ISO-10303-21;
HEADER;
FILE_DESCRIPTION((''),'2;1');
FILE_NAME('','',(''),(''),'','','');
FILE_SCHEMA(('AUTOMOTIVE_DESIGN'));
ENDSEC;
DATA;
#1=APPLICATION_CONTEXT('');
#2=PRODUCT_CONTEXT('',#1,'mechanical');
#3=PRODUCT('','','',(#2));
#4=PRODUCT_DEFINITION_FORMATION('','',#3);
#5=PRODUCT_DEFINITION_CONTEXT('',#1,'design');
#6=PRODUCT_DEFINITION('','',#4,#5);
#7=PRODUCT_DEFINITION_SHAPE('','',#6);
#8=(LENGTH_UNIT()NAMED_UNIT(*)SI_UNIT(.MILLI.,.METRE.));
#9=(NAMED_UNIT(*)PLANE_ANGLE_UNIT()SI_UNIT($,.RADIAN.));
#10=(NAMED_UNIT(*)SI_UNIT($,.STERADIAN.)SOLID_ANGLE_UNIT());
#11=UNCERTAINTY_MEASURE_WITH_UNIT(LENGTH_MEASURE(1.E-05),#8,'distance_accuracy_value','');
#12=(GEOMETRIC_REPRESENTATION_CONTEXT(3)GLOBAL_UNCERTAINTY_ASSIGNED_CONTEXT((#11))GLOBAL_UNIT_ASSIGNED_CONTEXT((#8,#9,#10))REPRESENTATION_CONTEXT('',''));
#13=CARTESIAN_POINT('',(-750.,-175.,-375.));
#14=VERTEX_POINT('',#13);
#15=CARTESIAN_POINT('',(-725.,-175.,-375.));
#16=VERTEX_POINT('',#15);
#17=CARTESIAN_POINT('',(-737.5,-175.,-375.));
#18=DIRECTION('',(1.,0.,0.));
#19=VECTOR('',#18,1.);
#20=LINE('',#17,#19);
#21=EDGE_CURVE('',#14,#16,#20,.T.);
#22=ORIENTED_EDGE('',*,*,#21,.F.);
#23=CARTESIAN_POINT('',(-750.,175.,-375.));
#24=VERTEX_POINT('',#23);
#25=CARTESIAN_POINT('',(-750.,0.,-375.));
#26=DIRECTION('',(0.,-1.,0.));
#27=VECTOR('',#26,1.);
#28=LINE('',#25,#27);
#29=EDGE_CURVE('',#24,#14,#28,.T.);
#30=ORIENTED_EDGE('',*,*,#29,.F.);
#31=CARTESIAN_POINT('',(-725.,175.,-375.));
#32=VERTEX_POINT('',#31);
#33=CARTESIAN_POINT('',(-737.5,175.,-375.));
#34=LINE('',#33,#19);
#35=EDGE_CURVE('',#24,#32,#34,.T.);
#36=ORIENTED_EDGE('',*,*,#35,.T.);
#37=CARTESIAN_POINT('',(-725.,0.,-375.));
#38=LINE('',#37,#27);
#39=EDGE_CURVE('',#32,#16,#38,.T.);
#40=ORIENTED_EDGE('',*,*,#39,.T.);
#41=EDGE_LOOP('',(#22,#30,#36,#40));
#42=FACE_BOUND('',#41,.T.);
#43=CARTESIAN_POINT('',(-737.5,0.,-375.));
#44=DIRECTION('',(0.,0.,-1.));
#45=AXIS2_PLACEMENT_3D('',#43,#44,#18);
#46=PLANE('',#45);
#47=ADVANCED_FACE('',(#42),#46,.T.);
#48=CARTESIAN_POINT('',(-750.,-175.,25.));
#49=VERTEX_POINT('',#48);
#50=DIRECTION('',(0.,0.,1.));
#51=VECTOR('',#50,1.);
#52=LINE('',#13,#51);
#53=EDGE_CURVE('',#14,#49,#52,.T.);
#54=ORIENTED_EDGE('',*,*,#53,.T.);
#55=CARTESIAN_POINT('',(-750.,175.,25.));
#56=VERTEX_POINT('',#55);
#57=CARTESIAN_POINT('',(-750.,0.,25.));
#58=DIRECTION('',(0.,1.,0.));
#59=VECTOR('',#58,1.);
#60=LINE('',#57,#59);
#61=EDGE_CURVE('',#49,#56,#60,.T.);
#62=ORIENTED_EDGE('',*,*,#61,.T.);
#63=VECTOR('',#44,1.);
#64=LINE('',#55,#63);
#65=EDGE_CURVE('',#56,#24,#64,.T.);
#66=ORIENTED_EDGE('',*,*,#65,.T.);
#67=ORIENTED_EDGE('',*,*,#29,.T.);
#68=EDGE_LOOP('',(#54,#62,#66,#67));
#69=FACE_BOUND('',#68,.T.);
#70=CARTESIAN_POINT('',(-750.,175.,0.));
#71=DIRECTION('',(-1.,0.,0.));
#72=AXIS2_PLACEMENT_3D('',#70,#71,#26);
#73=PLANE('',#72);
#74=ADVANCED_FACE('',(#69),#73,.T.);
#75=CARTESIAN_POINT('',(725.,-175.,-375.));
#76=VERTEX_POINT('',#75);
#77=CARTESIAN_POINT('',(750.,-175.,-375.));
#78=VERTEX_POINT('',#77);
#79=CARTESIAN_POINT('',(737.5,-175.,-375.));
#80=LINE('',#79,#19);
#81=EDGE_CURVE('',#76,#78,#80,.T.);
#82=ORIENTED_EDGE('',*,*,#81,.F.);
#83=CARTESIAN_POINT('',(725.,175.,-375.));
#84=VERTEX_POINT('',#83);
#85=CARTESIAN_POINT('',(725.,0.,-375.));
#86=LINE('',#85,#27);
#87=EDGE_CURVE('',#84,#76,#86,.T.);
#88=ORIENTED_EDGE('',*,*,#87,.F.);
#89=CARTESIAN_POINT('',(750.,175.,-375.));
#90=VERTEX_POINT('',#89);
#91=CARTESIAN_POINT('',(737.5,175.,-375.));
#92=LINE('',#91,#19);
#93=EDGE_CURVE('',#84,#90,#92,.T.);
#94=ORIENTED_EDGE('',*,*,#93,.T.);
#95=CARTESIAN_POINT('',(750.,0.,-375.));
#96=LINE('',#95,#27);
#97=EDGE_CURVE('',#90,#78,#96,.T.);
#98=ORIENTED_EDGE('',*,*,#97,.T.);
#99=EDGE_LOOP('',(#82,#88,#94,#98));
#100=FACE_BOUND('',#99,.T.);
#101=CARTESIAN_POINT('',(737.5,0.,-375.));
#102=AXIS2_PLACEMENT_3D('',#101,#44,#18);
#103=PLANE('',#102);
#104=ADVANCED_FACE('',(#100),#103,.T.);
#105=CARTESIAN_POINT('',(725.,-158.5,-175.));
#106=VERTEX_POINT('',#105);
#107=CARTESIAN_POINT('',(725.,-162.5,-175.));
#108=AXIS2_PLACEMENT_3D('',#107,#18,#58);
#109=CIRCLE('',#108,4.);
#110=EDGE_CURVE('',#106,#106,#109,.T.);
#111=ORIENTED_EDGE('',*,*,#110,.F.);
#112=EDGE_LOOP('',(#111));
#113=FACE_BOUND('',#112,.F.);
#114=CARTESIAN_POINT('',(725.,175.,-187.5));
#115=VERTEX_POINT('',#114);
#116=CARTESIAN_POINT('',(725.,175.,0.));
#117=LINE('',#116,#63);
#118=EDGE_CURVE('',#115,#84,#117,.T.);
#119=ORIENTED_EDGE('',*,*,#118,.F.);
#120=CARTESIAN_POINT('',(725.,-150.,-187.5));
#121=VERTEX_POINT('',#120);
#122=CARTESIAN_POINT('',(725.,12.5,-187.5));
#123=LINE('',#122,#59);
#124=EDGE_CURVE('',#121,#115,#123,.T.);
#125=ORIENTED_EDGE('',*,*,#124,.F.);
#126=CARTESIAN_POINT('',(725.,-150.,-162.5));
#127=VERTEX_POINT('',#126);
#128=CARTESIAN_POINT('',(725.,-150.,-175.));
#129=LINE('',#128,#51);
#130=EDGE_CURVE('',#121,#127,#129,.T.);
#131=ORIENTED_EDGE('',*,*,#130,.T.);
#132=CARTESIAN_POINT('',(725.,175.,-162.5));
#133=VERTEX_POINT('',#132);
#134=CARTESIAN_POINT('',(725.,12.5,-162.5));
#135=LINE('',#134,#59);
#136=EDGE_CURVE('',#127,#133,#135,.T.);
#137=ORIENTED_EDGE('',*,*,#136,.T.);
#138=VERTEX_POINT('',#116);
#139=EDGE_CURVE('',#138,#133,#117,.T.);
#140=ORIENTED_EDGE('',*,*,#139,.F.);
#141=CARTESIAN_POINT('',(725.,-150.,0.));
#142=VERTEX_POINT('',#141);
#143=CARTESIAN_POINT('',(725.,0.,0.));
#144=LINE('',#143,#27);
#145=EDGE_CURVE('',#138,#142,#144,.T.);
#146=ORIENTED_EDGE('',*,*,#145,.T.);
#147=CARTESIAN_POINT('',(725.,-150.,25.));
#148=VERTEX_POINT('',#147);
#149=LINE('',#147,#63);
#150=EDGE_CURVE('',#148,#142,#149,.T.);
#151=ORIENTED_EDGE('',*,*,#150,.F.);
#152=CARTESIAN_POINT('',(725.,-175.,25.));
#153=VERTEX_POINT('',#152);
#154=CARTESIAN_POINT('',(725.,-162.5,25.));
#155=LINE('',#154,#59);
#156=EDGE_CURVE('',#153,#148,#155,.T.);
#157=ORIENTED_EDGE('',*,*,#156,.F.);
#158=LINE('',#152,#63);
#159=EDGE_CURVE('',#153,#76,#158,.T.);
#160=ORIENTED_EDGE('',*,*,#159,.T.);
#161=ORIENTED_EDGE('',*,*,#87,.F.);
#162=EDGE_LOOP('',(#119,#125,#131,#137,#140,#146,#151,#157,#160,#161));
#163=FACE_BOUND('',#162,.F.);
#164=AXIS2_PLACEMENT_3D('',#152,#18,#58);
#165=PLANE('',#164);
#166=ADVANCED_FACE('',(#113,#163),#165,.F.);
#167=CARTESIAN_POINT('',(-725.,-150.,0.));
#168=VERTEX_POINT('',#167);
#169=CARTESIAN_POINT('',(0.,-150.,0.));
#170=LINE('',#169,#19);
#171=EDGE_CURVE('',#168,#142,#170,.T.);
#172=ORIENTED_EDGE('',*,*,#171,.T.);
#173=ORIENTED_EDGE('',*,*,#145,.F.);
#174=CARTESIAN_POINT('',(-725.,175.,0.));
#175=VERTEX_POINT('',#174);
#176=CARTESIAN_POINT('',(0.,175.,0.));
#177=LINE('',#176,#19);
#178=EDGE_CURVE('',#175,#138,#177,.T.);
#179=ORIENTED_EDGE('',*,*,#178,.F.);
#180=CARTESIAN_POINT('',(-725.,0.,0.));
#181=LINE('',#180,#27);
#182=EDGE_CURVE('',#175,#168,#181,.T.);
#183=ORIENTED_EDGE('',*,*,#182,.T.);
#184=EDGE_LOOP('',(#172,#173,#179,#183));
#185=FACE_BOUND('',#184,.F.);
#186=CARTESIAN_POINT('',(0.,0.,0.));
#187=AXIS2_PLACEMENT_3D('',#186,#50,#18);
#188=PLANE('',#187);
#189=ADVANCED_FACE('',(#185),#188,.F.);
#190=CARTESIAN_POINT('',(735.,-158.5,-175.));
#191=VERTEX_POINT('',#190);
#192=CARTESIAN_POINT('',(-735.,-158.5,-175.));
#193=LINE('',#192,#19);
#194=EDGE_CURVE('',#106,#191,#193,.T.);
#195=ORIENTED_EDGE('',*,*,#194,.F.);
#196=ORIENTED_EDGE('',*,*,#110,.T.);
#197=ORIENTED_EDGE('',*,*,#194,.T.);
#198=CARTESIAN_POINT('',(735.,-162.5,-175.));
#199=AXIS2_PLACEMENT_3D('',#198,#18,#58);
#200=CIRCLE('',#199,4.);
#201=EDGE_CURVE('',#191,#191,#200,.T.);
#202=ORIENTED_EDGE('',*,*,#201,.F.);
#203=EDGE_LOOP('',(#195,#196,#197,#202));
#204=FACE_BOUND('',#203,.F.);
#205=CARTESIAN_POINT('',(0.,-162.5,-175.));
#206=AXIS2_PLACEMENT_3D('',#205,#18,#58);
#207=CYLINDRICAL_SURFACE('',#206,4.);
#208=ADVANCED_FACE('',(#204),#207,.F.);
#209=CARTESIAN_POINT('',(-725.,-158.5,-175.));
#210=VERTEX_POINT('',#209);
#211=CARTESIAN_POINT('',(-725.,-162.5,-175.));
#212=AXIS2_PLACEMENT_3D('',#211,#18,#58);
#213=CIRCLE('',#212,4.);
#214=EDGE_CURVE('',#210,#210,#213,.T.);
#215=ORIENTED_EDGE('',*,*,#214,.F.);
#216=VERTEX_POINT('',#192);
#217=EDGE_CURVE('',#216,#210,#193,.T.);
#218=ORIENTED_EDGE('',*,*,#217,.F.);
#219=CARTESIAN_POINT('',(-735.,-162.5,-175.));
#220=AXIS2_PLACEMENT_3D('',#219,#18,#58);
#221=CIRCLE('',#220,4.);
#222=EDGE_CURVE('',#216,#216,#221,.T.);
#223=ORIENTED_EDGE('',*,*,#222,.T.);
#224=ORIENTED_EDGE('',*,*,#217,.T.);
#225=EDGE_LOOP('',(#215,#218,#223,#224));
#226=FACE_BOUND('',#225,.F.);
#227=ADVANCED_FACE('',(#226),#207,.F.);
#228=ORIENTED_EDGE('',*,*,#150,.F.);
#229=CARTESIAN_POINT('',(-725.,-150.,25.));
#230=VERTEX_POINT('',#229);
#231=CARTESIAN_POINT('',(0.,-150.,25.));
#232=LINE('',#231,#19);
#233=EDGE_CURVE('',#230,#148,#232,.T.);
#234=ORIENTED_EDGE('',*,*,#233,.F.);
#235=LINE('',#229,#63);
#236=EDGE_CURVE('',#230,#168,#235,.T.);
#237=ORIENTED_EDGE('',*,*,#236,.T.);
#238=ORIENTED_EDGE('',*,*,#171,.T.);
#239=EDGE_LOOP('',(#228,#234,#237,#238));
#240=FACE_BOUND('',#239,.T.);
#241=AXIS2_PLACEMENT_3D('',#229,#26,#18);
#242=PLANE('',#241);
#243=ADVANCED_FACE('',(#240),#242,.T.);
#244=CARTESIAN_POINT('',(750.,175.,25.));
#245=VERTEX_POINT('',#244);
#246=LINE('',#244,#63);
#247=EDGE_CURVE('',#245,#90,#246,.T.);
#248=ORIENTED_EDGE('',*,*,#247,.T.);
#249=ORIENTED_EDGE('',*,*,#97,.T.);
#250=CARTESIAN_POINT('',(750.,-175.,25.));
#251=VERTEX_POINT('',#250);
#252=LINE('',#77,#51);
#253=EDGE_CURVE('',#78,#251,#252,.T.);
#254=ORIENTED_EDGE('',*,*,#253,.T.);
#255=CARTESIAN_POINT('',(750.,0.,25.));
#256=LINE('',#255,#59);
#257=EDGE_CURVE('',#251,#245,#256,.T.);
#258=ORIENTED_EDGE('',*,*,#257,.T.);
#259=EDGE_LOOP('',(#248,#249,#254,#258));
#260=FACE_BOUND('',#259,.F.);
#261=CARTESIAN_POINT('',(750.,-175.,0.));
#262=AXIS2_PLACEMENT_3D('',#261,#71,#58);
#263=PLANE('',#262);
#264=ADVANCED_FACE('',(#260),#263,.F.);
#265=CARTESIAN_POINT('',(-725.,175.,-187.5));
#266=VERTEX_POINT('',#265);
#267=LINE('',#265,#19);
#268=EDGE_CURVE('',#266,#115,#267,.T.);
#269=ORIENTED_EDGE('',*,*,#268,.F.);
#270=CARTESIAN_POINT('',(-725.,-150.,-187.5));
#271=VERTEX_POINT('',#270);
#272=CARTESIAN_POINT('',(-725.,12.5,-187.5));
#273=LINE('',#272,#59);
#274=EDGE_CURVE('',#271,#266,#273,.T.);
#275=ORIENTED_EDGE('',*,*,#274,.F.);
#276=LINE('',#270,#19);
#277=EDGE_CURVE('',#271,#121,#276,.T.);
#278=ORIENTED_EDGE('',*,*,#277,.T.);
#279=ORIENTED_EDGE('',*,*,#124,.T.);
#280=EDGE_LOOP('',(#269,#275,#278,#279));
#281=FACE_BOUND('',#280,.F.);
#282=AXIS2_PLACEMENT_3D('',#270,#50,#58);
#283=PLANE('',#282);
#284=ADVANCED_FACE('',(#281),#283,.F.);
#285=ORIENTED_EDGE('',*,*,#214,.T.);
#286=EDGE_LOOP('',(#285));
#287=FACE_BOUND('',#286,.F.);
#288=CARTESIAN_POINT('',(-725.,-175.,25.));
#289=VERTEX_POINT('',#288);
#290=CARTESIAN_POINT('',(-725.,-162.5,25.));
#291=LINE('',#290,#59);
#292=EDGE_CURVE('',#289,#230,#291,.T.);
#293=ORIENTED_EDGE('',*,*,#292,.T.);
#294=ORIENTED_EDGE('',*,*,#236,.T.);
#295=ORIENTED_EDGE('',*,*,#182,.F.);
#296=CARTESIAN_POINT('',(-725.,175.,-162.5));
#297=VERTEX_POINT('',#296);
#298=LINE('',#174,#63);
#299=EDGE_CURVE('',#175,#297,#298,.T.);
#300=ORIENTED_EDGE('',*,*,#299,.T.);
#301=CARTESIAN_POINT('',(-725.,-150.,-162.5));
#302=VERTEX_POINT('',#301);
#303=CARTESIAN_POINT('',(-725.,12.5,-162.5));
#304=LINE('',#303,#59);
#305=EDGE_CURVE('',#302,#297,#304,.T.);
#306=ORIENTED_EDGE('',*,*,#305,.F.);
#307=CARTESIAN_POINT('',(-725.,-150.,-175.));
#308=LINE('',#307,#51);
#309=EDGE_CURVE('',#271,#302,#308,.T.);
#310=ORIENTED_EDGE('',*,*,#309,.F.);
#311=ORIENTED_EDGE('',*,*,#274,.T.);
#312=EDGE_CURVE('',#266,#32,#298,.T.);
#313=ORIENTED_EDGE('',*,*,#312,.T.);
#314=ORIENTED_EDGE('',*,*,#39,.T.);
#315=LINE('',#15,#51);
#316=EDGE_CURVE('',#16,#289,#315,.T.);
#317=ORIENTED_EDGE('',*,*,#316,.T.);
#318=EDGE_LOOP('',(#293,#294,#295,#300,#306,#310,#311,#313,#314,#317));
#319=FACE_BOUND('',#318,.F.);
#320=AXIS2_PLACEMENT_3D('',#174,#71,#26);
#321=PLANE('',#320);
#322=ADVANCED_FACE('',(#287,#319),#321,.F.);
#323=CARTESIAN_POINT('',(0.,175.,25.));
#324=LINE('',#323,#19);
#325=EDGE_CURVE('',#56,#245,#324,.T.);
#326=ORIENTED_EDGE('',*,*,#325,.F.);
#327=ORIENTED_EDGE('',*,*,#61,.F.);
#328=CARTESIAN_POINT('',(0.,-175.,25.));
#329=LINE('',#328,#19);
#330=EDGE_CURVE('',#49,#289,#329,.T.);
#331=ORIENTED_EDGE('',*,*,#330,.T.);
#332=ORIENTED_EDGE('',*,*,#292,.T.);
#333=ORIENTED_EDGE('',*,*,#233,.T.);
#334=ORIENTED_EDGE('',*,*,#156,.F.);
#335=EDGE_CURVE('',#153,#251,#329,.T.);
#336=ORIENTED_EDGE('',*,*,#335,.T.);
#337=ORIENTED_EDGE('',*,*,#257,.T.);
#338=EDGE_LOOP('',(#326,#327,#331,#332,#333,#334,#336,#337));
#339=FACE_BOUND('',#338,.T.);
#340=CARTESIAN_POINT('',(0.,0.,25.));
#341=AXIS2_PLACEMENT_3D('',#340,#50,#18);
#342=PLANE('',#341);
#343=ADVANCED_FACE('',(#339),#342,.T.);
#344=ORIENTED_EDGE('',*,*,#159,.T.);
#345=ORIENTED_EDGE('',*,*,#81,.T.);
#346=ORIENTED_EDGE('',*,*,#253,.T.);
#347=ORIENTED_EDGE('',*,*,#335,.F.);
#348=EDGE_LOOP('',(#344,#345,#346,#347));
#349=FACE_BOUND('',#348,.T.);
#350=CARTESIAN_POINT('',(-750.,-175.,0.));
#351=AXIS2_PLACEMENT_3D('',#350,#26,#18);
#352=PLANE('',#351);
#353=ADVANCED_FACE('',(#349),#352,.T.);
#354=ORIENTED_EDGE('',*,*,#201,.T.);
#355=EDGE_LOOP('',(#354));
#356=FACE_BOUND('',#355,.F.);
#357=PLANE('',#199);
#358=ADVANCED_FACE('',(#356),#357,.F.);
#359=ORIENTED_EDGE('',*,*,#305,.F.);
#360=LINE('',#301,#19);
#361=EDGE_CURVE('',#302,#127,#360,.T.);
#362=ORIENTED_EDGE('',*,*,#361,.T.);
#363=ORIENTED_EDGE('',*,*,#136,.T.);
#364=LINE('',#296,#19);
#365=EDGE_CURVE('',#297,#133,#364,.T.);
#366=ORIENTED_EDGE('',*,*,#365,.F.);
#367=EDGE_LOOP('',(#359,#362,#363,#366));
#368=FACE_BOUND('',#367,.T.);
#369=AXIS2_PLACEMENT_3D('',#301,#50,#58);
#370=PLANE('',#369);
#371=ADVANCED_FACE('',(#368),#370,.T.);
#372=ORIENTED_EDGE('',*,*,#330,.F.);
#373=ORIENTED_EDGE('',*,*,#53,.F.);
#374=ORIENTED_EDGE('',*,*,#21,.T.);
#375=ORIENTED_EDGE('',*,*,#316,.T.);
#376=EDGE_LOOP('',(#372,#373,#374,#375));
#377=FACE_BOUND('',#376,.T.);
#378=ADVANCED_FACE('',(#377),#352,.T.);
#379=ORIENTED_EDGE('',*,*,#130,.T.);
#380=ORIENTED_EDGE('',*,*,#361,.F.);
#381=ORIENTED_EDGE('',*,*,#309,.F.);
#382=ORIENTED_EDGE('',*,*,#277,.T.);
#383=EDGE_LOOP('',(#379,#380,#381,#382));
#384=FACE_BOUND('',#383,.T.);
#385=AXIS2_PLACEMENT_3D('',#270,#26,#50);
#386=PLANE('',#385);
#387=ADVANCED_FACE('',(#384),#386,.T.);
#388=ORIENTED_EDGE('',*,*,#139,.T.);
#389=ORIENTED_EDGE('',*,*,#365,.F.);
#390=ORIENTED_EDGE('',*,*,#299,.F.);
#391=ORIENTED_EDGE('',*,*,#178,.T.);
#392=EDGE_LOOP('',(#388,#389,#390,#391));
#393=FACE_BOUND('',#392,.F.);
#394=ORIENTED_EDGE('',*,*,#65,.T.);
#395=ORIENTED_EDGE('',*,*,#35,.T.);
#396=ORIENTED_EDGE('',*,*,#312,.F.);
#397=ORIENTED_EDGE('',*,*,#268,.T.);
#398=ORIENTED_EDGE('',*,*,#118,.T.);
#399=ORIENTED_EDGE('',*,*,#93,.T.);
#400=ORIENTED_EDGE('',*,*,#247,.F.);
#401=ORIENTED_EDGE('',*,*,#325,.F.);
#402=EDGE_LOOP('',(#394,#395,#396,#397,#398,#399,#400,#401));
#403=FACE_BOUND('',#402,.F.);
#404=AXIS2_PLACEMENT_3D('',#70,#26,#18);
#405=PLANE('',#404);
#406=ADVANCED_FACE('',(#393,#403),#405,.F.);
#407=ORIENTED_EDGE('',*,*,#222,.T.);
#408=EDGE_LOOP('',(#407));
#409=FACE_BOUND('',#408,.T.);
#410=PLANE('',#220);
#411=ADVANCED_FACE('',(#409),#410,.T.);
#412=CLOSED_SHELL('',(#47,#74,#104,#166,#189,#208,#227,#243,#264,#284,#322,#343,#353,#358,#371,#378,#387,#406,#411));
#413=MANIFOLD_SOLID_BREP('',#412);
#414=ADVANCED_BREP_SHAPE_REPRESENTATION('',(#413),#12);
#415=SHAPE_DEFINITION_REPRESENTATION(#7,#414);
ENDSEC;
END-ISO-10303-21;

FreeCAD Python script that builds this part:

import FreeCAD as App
import Part
import Sketcher

V = App.Vector
Q = App.Units.Quantity

doc = App.newDocument("Part")
params = doc.addObject("Spreadsheet::Sheet", "Params")
for row, (alias, value) in enumerate([
    ("sketch1_width", "1500 mm"),
    ("sketch1_height", "350 mm"),
    ("pad1_length", "25 mm"),
    ("sketch2_width", "25 mm"),
    ("sketch2_height", "350 mm"),
    ("pad2_length", "375 mm"),
    ("sketch3_width", "325 mm"),
    ("sketch3_height", "25 mm"),
    ("sketch4_diameter", "8 mm"),
    ("pocket1_length", "1470 mm"),
    ("sketch5_width", "1450 mm"),
    ("sketch5_height", "25 mm"),
    ("pocket2_length", "25 mm"),
], start=1):
    params.set(f"A{row}", alias)
    params.set(f"B{row}", "=" + value)
    params.setAlias(f"B{row}", alias)

body = doc.addObject("PartDesign::Body", "Body")

sketch1 = doc.addObject("Sketcher::SketchObject", "Sketch")
body.addObject(sketch1)
sketch1.AttachmentSupport = (doc.XY_Plane, [""])
sketch1.MapMode = "FlatFace"
sketch1.addGeometry([
    Part.LineSegment(V(-750, 175, 0), V(-750, -175, 0)),
    Part.LineSegment(V(-750, -175, 0), V(750, -175, 0)),
    Part.LineSegment(V(750, -175, 0), V(750, 175, 0)),
    Part.LineSegment(V(750, 175, 0), V(-750, 175, 0)),
], False)
sketch1.addConstraint([
    Sketcher.Constraint("Coincident", 0, 2, 1, 1),
    Sketcher.Constraint("Coincident", 1, 2, 2, 1),
    Sketcher.Constraint("Coincident", 2, 2, 3, 1),
    Sketcher.Constraint("Coincident", 3, 2, 0, 1),
    Sketcher.Constraint("Vertical", 0),
    Sketcher.Constraint("Horizontal", 1),
    Sketcher.Constraint("Vertical", 2),
    Sketcher.Constraint("Horizontal", 3),
    Sketcher.Constraint("Symmetric", 0, 2, 2, 2, -1, 1),
    Sketcher.Constraint("DistanceX", 1, 1, 1, 2, Q("1500 mm")),
    Sketcher.Constraint("DistanceY", 0, 2, 0, 1, Q("350 mm")),
])
sketch1.setExpression("Constraints[9]", "Params.sketch1_width")
sketch1.setExpression("Constraints[10]", "Params.sketch1_height")
pad1 = doc.addObject("PartDesign::Pad", "Pad")
body.addObject(pad1)
pad1.Profile = sketch1
pad1.setExpression("Length", "Params.pad1_length")

sketch2 = doc.addObject("Sketcher::SketchObject", "Sketch001")
body.addObject(sketch2)
sketch2.AttachmentSupport = (doc.XY_Plane, [""])
sketch2.MapMode = "FlatFace"
sketch2.addGeometry([
    Part.LineSegment(V(-750, -175, 0), V(-750, 175, 0)),
    Part.LineSegment(V(-750, 175, 0), V(-725, 175, 0)),
    Part.LineSegment(V(-725, 175, 0), V(-725, -175, 0)),
    Part.LineSegment(V(-725, -175, 0), V(-750, -175, 0)),
    Part.LineSegment(V(725, -175, 0), V(725, 175, 0)),
    Part.LineSegment(V(725, 175, 0), V(750, 175, 0)),
    Part.LineSegment(V(750, 175, 0), V(750, -175, 0)),
    Part.LineSegment(V(750, -175, 0), V(725, -175, 0)),
], False)
sketch2.addConstraint([
    Sketcher.Constraint("Coincident", 0, 2, 1, 1),
    Sketcher.Constraint("Coincident", 1, 2, 2, 1),
    Sketcher.Constraint("Coincident", 2, 2, 3, 1),
    Sketcher.Constraint("Coincident", 3, 2, 0, 1),
    Sketcher.Constraint("Coincident", 4, 2, 5, 1),
    Sketcher.Constraint("Coincident", 5, 2, 6, 1),
    Sketcher.Constraint("Coincident", 6, 2, 7, 1),
    Sketcher.Constraint("Coincident", 7, 2, 4, 1),
    Sketcher.Constraint("Vertical", 0),
    Sketcher.Constraint("Horizontal", 1),
    Sketcher.Constraint("Vertical", 2),
    Sketcher.Constraint("Horizontal", 3),
    Sketcher.Constraint("Vertical", 4),
    Sketcher.Constraint("Horizontal", 5),
    Sketcher.Constraint("Vertical", 6),
    Sketcher.Constraint("Horizontal", 7),
    Sketcher.Constraint("Symmetric", 2, 2, 4, 2, -1, 1),
    Sketcher.Constraint("Symmetric", 0, 2, 6, 2, -1, 1),
    Sketcher.Constraint("Horizontal", 1, 2, 4, 2),
    Sketcher.Constraint("DistanceX", 1, 1, 1, 2, Q("25 mm")),
    Sketcher.Constraint("DistanceY", 0, 1, 0, 2, Q("350 mm")),
    Sketcher.Constraint("DistanceX", 0, 2, -1, 1, Q("750 mm")),
])
sketch2.setExpression("Constraints[19]", "Params.sketch2_width")
sketch2.setExpression("Constraints[20]", "Params.sketch2_height")
pad2 = doc.addObject("PartDesign::Pad", "Pad001")
body.addObject(pad2)
pad2.Profile = sketch2
pad2.setExpression("Length", "Params.pad2_length")
pad2.Reversed = True

sketch3 = doc.addObject("Sketcher::SketchObject", "Sketch002")
body.addObject(sketch3)
sketch3.AttachmentSupport = (doc.YZ_Plane, [""])
sketch3.MapMode = "FlatFace"
sketch3.AttachmentOffset = App.Placement(V(0, 0, -725), App.Rotation())
sketch3.addGeometry([
    Part.LineSegment(V(-150, -162.5, 0), V(-150, -187.5, 0)),
    Part.LineSegment(V(-150, -187.5, 0), V(175, -187.5, 0)),
    Part.LineSegment(V(175, -187.5, 0), V(175, -162.5, 0)),
    Part.LineSegment(V(175, -162.5, 0), V(-150, -162.5, 0)),
], False)
sketch3.addConstraint([
    Sketcher.Constraint("Coincident", 0, 2, 1, 1),
    Sketcher.Constraint("Coincident", 1, 2, 2, 1),
    Sketcher.Constraint("Coincident", 2, 2, 3, 1),
    Sketcher.Constraint("Coincident", 3, 2, 0, 1),
    Sketcher.Constraint("Vertical", 0),
    Sketcher.Constraint("Horizontal", 1),
    Sketcher.Constraint("Vertical", 2),
    Sketcher.Constraint("Horizontal", 3),
    Sketcher.Constraint("DistanceX", 1, 1, 1, 2, Q("325 mm")),
    Sketcher.Constraint("DistanceY", 0, 2, 0, 1, Q("25 mm")),
    Sketcher.Constraint("DistanceX", 0, 2, -1, 1, Q("150 mm")),
    Sketcher.Constraint("DistanceY", 0, 2, -1, 1, Q("187.5 mm")),
])
sketch3.setExpression("Constraints[8]", "Params.sketch3_width")
sketch3.setExpression("Constraints[9]", "Params.sketch3_height")
pad3 = doc.addObject("PartDesign::Pad", "Pad002")
body.addObject(pad3)
pad3.Profile = sketch3
pad3.Type = "UpToLast"

sketch4 = doc.addObject("Sketcher::SketchObject", "Sketch003")
body.addObject(sketch4)
sketch4.AttachmentSupport = (doc.YZ_Plane, [""])
sketch4.MapMode = "FlatFace"
sketch4.addGeometry(Part.Circle(V(-162.5, -175, 0), V(0, 0, 1), 4), False)
sketch4.addConstraint([
    Sketcher.Constraint("Diameter", 0, Q("8 mm")),
    Sketcher.Constraint("DistanceY", 0, 3, -1, 1, Q("175 mm")),
    Sketcher.Constraint("DistanceX", 0, 3, -1, 1, Q("162.5 mm")),
])
sketch4.setExpression("Constraints[0]", "Params.sketch4_diameter")
pocket1 = doc.addObject("PartDesign::Pocket", "Pocket")
body.addObject(pocket1)
pocket1.Profile = sketch4
pocket1.setExpression("Length", "Params.pocket1_length")
pocket1.Midplane = True

sketch5 = doc.addObject("Sketcher::SketchObject", "Sketch004")
body.addObject(sketch5)
sketch5.AttachmentSupport = (doc.XY_Plane, [""])
sketch5.MapMode = "FlatFace"
sketch5.AttachmentOffset = App.Placement(V(0, 0, 25), App.Rotation())
sketch5.addGeometry([
    Part.LineSegment(V(-725, -150, 0), V(-725, -175, 0)),
    Part.LineSegment(V(-725, -175, 0), V(725, -175, 0)),
    Part.LineSegment(V(725, -175, 0), V(725, -150, 0)),
    Part.LineSegment(V(725, -150, 0), V(-725, -150, 0)),
], False)
sketch5.addConstraint([
    Sketcher.Constraint("Coincident", 0, 2, 1, 1),
    Sketcher.Constraint("Coincident", 1, 2, 2, 1),
    Sketcher.Constraint("Coincident", 2, 2, 3, 1),
    Sketcher.Constraint("Coincident", 3, 2, 0, 1),
    Sketcher.Constraint("Vertical", 0),
    Sketcher.Constraint("Horizontal", 1),
    Sketcher.Constraint("Vertical", 2),
    Sketcher.Constraint("Horizontal", 3),
    Sketcher.Constraint("DistanceX", 1, 1, 1, 2, Q("1450 mm")),
    Sketcher.Constraint("DistanceY", 0, 2, 0, 1, Q("25 mm")),
    Sketcher.Constraint("DistanceX", 0, 2, -1, 1, Q("725 mm")),
    Sketcher.Constraint("DistanceY", 0, 2, -1, 1, Q("175 mm")),
])
sketch5.setExpression("Constraints[8]", "Params.sketch5_width")
sketch5.setExpression("Constraints[9]", "Params.sketch5_height")
pocket2 = doc.addObject("PartDesign::Pocket", "Pocket001")
body.addObject(pocket2)
pocket2.Profile = sketch5
pocket2.setExpression("Length", "Params.pocket2_length")

doc.recompute()
